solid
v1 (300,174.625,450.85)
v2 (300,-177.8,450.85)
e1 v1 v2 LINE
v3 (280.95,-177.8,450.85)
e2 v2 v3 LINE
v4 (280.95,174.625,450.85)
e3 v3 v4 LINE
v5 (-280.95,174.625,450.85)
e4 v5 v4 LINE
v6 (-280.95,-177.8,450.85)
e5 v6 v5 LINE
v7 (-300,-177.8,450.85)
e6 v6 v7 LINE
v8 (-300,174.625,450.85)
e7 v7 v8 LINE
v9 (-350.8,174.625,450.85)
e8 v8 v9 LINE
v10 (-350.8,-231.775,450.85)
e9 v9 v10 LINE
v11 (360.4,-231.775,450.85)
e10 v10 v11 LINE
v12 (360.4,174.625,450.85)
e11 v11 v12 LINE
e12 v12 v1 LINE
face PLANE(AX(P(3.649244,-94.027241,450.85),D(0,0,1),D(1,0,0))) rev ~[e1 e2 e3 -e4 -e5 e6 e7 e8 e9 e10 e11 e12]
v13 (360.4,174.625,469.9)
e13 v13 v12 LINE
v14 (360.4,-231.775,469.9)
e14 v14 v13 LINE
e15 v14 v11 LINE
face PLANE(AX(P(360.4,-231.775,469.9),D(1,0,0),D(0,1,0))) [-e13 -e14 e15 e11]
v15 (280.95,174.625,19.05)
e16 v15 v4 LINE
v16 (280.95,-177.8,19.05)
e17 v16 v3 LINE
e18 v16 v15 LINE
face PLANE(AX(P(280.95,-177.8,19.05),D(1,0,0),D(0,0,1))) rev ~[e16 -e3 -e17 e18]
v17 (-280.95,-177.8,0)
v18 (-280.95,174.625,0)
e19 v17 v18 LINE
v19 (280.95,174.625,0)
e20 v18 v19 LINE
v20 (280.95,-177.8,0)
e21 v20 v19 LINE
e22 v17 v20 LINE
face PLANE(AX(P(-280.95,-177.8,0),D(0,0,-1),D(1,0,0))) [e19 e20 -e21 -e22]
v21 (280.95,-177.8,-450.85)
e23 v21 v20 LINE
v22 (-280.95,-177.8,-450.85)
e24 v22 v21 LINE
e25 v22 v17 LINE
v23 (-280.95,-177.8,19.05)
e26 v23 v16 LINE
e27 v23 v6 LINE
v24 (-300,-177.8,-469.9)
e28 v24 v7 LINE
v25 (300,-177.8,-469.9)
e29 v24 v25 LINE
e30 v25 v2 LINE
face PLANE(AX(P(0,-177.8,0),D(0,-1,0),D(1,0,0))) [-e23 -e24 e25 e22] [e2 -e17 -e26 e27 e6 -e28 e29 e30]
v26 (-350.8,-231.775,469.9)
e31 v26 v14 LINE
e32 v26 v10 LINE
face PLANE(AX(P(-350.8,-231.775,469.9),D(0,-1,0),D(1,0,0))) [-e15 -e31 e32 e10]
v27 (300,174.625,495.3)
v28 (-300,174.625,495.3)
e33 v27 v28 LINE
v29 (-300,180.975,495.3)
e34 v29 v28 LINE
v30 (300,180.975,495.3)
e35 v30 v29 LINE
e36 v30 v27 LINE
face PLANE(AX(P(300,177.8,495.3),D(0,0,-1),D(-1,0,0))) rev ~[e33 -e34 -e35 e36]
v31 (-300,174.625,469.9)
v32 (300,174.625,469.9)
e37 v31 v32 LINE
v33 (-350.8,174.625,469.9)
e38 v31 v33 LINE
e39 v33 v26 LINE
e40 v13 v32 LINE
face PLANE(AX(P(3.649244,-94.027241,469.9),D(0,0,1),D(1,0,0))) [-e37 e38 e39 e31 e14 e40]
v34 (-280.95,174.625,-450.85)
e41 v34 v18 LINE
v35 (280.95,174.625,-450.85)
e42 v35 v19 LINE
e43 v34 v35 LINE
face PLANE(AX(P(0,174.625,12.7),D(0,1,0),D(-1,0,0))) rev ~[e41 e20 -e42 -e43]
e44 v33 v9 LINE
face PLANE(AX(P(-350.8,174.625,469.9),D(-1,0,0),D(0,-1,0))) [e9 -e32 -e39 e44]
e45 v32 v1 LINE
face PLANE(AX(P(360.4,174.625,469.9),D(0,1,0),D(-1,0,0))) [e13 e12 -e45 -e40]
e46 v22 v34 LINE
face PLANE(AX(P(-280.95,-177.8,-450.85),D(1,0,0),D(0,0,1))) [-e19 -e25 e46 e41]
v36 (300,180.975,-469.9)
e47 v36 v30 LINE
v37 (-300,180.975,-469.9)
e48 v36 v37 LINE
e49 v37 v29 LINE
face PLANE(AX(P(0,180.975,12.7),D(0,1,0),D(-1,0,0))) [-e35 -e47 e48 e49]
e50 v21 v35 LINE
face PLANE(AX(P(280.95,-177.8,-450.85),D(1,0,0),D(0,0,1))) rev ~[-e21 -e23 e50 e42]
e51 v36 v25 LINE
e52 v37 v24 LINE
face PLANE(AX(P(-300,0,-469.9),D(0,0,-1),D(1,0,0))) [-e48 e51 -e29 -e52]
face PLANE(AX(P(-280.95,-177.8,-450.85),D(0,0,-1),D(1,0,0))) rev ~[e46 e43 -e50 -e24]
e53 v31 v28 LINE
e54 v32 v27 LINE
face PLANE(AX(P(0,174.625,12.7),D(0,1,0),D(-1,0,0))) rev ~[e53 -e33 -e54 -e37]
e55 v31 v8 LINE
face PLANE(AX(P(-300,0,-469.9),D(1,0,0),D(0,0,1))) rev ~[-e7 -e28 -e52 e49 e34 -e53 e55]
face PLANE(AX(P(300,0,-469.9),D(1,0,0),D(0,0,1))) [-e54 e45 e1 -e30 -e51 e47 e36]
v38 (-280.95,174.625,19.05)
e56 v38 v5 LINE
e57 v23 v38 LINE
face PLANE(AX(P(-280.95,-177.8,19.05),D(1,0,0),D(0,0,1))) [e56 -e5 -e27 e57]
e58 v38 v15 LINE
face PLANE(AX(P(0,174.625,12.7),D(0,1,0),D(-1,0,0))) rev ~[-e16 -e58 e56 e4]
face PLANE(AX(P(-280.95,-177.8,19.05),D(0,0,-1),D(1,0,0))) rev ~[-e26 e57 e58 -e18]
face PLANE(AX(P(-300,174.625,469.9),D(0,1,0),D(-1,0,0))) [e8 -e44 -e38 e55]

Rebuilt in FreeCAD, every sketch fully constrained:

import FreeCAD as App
import Part
import Sketcher
Q = App.Units.Quantity


def add_polygon(sketch, points):
    """Adds a closed chain of lines whose ends are joined by coincident constraints."""
    first, n = sketch.GeometryCount, len(points)
    for a, b in zip(points, points[1:] + points[:1]):
        sketch.addGeometry(Part.LineSegment(App.Vector(*a, 0), App.Vector(*b, 0)), False)
    for i in range(n):
        sketch.addConstraint(Sketcher.Constraint("Coincident", first + i, 2, first + (i + 1) % n, 1))

doc = App.newDocument("Part")
body = doc.addObject("PartDesign::Body", "Body")

# Sketch on XZ plane
sketch1 = body.newObject("Sketcher::SketchObject", "Sketch")
sketch1.AttachmentSupport = (doc.getObject("XZ_Plane"), [""])
sketch1.MapMode = "FlatFace"
add_polygon(sketch1, [(-300, 470), (-300, -470), (300, -470), (300, 470)])  # lines 0-3
sketch1.addConstraint(Sketcher.Constraint("Vertical", 0))
sketch1.addConstraint(Sketcher.Constraint("Horizontal", 1))
sketch1.addConstraint(Sketcher.Constraint("Vertical", 2))
sketch1.addConstraint(Sketcher.Constraint("Horizontal", 3))
sketch1.addConstraint(Sketcher.Constraint("Symmetric", 0, 2, 2, 2, -1, 1))
sketch1.addConstraint(Sketcher.Constraint("DistanceY", 0, 2, 0, 1, Q("37 in")))
sketch1.addConstraint(Sketcher.Constraint("DistanceX", 1, 1, 1, 2, 600.0))
pad1 = body.newObject("PartDesign::Pad", "Pad")
pad1.Profile = sketch1
pad1.Length = Q("14 in")
pad1.Midplane = True

# Sketch on XZ plane
sketch2 = body.newObject("Sketcher::SketchObject", "Sketch001")
sketch2.AttachmentSupport = (doc.getObject("XZ_Plane"), [""])
sketch2.MapMode = "FlatFace"
sketch2.AttachmentOffset = App.Placement(App.Vector(0, 0, 7 * 25.4), App.Rotation())
add_polygon(sketch2, [(-281, 451), (-281, 19), (281, 19), (281, 451)])  # lines 0-3
add_polygon(sketch2, [(-281, 0), (-281, -451), (281, -451), (281, 0)])  # lines 4-7
sketch2.addConstraint(Sketcher.Constraint("Vertical", 0))
sketch2.addConstraint(Sketcher.Constraint("Horizontal", 1))
sketch2.addConstraint(Sketcher.Constraint("Vertical", 2))
sketch2.addConstraint(Sketcher.Constraint("Horizontal", 3))
sketch2.addConstraint(Sketcher.Constraint("Vertical", 4))
sketch2.addConstraint(Sketcher.Constraint("Horizontal", 5))
sketch2.addConstraint(Sketcher.Constraint("Vertical", 6))
sketch2.addConstraint(Sketcher.Constraint("Horizontal", 7))
sketch2.addConstraint(Sketcher.Constraint("Symmetric", 2, 2, 4, 2, -1, 1))
sketch2.addConstraint(Sketcher.Constraint("Symmetric", 6, 2, 7, 2, -1, 1))
sketch2.addConstraint(Sketcher.Constraint("Vertical", 3, 2, 4, 2))
sketch2.addConstraint(Sketcher.Constraint("DistanceY", 0, 2, 0, 1, Q("17 in")))
sketch2.addConstraint(Sketcher.Constraint("DistanceY", 4, 2, 4, 1, Q("17.75 in")))
sketch2.addConstraint(Sketcher.Constraint("DistanceX", 1, 1, 1, 2, 561.9))
pocket1 = body.newObject("PartDesign::Pocket", "Pocket")
pocket1.Profile = sketch2
pocket1.Type = "ThroughAll"

# Sketch on XZ plane
sketch3 = body.newObject("Sketcher::SketchObject", "Sketch002")
sketch3.AttachmentSupport = (doc.getObject("XZ_Plane"), [""])
sketch3.MapMode = "FlatFace"
sketch3.AttachmentOffset = App.Placement(App.Vector(0, 0, -7 * 25.4), App.Rotation())
add_polygon(sketch3, [(300, 495), (300, -470), (-300, -470), (-300, 495)])  # lines 0-3
sketch3.addConstraint(Sketcher.Constraint("Vertical", 0))
sketch3.addConstraint(Sketcher.Constraint("Horizontal", 1))
sketch3.addConstraint(Sketcher.Constraint("Vertical", 2))
sketch3.addConstraint(Sketcher.Constraint("Horizontal", 3))
sketch3.addConstraint(Sketcher.Constraint("DistanceY", 0, 2, 0, 1, Q("38 in")))
sketch3.addConstraint(Sketcher.Constraint("DistanceY", 0, 2, -1, 1, Q("18.5 in")))
sketch3.addConstraint(Sketcher.Constraint("DistanceX", 1, 2, 1, 1, 600.0))
sketch3.addConstraint(Sketcher.Constraint("DistanceX", -1, 1, 0, 2, 300.0))
pad2 = body.newObject("PartDesign::Pad", "Pad001")
pad2.Profile = sketch3
pad2.Length = Q("0.25 in")
pad2.Midplane = True

# Sketch on XY plane
sketch4 = body.newObject("Sketcher::SketchObject", "Sketch003")
sketch4.AttachmentSupport = (doc.getObject("XY_Plane"), [""])
sketch4.MapMode = "FlatFace"
sketch4.AttachmentOffset = App.Placement(App.Vector(0, 0, 18.5 * 25.4), App.Rotation())
add_polygon(sketch4, [(-351, 175), (-351, -232), (360, -232), (360, 175), (300, 175), (300, -178), (-300, -178), (-300, 175)])  # lines 0-7
sketch4.addConstraint(Sketcher.Constraint("Vertical", 0))
sketch4.addConstraint(Sketcher.Constraint("Horizontal", 1))
sketch4.addConstraint(Sketcher.Constraint("Vertical", 2))
sketch4.addConstraint(Sketcher.Constraint("Horizontal", 3))
sketch4.addConstraint(Sketcher.Constraint("Vertical", 4))
sketch4.addConstraint(Sketcher.Constraint("Horizontal", 5))
sketch4.addConstraint(Sketcher.Constraint("Vertical", 6))
sketch4.addConstraint(Sketcher.Constraint("Horizontal", 7))
sketch4.addConstraint(Sketcher.Constraint("Symmetric", 3, 2, 6, 2, -2))
sketch4.addConstraint(Sketcher.Constraint("DistanceX", 1, 1, 1, 2, Q("28 in")))
sketch4.addConstraint(Sketcher.Constraint("DistanceX", 7, 2, 7, 1, Q("2 in")))
sketch4.addConstraint(Sketcher.Constraint("DistanceY", 0, 2, 0, 1, Q("16 in")))
sketch4.addConstraint(Sketcher.Constraint("DistanceY", 4, 2, -1, 1, Q("7 in")))
sketch4.addConstraint(Sketcher.Constraint("DistanceY", 4, 2, 4, 1, Q("13.875 in")))
sketch4.addConstraint(Sketcher.Constraint("DistanceX", 3, 2, 3, 1, 60.4))
pad3 = body.newObject("PartDesign::Pad", "Pad002")
pad3.Profile = sketch4
pad3.Length = Q("0.75 in")
pad3.Reversed = True

doc.recompute()
